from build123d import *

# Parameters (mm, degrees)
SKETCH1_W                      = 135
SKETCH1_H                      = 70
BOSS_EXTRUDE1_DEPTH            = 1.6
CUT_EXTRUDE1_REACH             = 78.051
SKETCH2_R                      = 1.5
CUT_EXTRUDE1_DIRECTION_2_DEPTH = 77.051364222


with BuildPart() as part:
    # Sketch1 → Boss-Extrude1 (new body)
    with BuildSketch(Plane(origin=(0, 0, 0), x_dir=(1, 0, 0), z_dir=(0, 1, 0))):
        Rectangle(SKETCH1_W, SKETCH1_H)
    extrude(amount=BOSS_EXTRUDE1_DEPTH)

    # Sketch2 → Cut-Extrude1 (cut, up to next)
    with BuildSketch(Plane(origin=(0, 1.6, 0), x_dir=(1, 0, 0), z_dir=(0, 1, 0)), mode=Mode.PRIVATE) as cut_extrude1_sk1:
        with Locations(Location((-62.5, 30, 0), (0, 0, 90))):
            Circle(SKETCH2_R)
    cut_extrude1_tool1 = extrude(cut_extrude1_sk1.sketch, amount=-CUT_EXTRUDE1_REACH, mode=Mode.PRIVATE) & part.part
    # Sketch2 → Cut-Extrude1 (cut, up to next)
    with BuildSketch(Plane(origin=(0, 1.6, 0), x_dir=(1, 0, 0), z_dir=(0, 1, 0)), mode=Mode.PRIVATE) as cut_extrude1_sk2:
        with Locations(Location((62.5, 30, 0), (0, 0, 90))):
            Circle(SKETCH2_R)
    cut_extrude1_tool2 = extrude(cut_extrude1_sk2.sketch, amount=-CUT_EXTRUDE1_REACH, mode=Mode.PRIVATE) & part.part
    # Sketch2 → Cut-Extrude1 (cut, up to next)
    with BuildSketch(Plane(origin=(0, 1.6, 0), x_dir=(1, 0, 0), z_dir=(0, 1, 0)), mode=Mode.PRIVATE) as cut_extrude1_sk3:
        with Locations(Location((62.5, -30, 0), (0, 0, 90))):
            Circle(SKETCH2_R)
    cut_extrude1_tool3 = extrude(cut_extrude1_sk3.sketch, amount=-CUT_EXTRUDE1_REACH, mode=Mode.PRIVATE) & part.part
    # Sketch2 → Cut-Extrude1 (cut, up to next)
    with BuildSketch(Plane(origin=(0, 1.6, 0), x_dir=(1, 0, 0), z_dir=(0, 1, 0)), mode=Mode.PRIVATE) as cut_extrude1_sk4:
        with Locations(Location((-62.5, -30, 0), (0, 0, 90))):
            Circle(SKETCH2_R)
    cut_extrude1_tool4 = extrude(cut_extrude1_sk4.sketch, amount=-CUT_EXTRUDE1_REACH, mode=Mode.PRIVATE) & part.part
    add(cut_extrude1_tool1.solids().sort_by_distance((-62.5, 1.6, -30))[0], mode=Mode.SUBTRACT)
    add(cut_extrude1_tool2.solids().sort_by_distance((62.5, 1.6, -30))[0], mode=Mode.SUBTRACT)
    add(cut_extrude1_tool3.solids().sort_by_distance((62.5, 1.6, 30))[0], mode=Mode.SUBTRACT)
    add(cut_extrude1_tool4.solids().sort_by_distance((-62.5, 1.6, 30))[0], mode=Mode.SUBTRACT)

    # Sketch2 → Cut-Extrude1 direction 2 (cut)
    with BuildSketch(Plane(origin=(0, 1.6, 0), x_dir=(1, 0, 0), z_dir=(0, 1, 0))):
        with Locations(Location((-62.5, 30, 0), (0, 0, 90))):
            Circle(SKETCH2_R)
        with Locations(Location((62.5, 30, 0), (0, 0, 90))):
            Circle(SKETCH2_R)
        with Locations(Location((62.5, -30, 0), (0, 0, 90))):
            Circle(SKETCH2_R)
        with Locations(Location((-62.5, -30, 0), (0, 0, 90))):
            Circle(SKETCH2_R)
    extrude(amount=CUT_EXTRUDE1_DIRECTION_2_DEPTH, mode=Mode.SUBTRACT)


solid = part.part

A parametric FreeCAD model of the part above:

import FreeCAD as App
import Part
import Sketcher

doc = App.newDocument("Part")
body = doc.addObject("PartDesign::Body", "Body")

sketch1 = body.newObject("Sketcher::SketchObject", "Sketch")
sketch1.AttachmentSupport = (doc.getObject("XZ_Plane"), [""])
sketch1.MapMode = "FlatFace"
sketch1.addGeometry([
    Part.LineSegment(App.Vector(-68, -35, 0), App.Vector(-68, 35, 0)),
    Part.LineSegment(App.Vector(-68, 35, 0), App.Vector(68, 35, 0)),
    Part.LineSegment(App.Vector(68, 35, 0), App.Vector(68, -35, 0)),
    Part.LineSegment(App.Vector(68, -35, 0), App.Vector(-68, -35, 0)),
], False)
sketch1.addConstraint([
    Sketcher.Constraint("Coincident", 0, 2, 1, 1),
    Sketcher.Constraint("Coincident", 1, 2, 2, 1),
    Sketcher.Constraint("Coincident", 2, 2, 3, 1),
    Sketcher.Constraint("Coincident", 3, 2, 0, 1),
    Sketcher.Constraint("Vertical", 0),
    Sketcher.Constraint("Horizontal", 1),
    Sketcher.Constraint("Vertical", 2),
    Sketcher.Constraint("Horizontal", 3),
    Sketcher.Constraint("Symmetric", 0, 2, 2, 2, -1, 1),
    Sketcher.Constraint("DistanceX", 1, 1, 1, 2, 135.0),
    Sketcher.Constraint("DistanceY", 0, 1, 0, 2, 70.0),
])
pad1 = body.newObject("PartDesign::Pad", "Pad")
pad1.Profile = sketch1
pad1.Length = 1.6
pad1.Reversed = True

sketch2 = body.newObject("Sketcher::SketchObject", "Sketch001")
sketch2.AttachmentSupport = (doc.getObject("XZ_Plane"), [""])
sketch2.MapMode = "FlatFace"
sketch2.AttachmentOffset = App.Placement(App.Vector(0, 0, -1.6), App.Rotation())
sketch2.addGeometry(Part.Circle(App.Vector(-62.5, -30, 0), App.Vector(0, 0, 1), 1.5), False)
sketch2.addConstraint([
    Sketcher.Constraint("Diameter", 0, 3.0),
    Sketcher.Constraint("DistanceY", 0, 3, -1, 1, 30.0),
    Sketcher.Constraint("DistanceX", 0, 3, -1, 1, 62.5),
])
pocket1 = body.newObject("PartDesign::Pocket", "Pocket")
pocket1.Profile = sketch2
pocket1.Type = "UpToFirst"
pocket1.Reversed = True

sketch3 = body.newObject("Sketcher::SketchObject", "Sketch002")
sketch3.AttachmentSupport = (doc.getObject("XZ_Plane"), [""])
sketch3.MapMode = "FlatFace"
sketch3.AttachmentOffset = App.Placement(App.Vector(0, 0, -1.6), App.Rotation())
sketch3.addGeometry(Part.Circle(App.Vector(62.5, -30, 0), App.Vector(0, 0, 1), 1.5), False)
sketch3.addConstraint([
    Sketcher.Constraint("Diameter", 0, 3.0),
    Sketcher.Constraint("DistanceY", 0, 3, -1, 1, 30.0),
    Sketcher.Constraint("DistanceX", -1, 1, 0, 3, 62.5),
])
pocket2 = body.newObject("PartDesign::Pocket", "Pocket001")
pocket2.Profile = sketch3
pocket2.Type = "UpToFirst"
pocket2.Reversed = True

sketch4 = body.newObject("Sketcher::SketchObject", "Sketch003")
sketch4.AttachmentSupport = (doc.getObject("XZ_Plane"), [""])
sketch4.MapMode = "FlatFace"
sketch4.AttachmentOffset = App.Placement(App.Vector(0, 0, -1.6), App.Rotation())
sketch4.addGeometry(Part.Circle(App.Vector(62.5, 30, 0), App.Vector(0, 0, 1), 1.5), False)
sketch4.addConstraint([
    Sketcher.Constraint("Diameter", 0, 3.0),
    Sketcher.Constraint("DistanceY", -1, 1, 0, 3, 30.0),
    Sketcher.Constraint("DistanceX", -1, 1, 0, 3, 62.5),
])
pocket3 = body.newObject("PartDesign::Pocket", "Pocket002")
pocket3.Profile = sketch4
pocket3.Type = "UpToFirst"
pocket3.Reversed = True

sketch5 = body.newObject("Sketcher::SketchObject", "Sketch004")
sketch5.AttachmentSupport = (doc.getObject("XZ_Plane"), [""])
sketch5.MapMode = "FlatFace"
sketch5.AttachmentOffset = App.Placement(App.Vector(0, 0, -1.6), App.Rotation())
sketch5.addGeometry(Part.Circle(App.Vector(-62.5, 30, 0), App.Vector(0, 0, 1), 1.5), False)
sketch5.addConstraint([
    Sketcher.Constraint("Diameter", 0, 3.0),
    Sketcher.Constraint("DistanceY", -1, 1, 0, 3, 30.0),
    Sketcher.Constraint("DistanceX", 0, 3, -1, 1, 62.5),
])
pocket4 = body.newObject("PartDesign::Pocket", "Pocket003")
pocket4.Profile = sketch5
pocket4.Type = "UpToFirst"
pocket4.Reversed = True

sketch6 = body.newObject("Sketcher::SketchObject", "Sketch005")
sketch6.AttachmentSupport = (doc.getObject("XZ_Plane"), [""])
sketch6.MapMode = "FlatFace"
sketch6.AttachmentOffset = App.Placement(App.Vector(0, 0, -1.6), App.Rotation())
sketch6.addGeometry([
    Part.Circle(App.Vector(-62.5, -30, 0), App.Vector(0, 0, 1), 1.5),
    Part.Circle(App.Vector(62.5, -30, 0), App.Vector(0, 0, 1), 1.5),
    Part.Circle(App.Vector(62.5, 30, 0), App.Vector(0, 0, 1), 1.5),
    Part.Circle(App.Vector(-62.5, 30, 0), App.Vector(0, 0, 1), 1.5),
], False)
sketch6.addConstraint([
    Sketcher.Constraint("Equal", 0, 1),
    Sketcher.Constraint("Equal", 1, 2),
    Sketcher.Constraint("Equal", 2, 3),
    Sketcher.Constraint("Symmetric", 0, 3, 2, 3, -1, 1),
    Sketcher.Constraint("Symmetric", 1, 3, 3, 3, -1, 1),
    Sketcher.Constraint("Symmetric", 0, 3, 1, 3, -2),
    Sketcher.Constraint("Diameter", 0, 3.0),
    Sketcher.Constraint("DistanceY", 0, 3, -1, 1, 30.0),
    Sketcher.Constraint("DistanceX", 0, 3, 1, 3, 125.0),
])
pocket5 = body.newObject("PartDesign::Pocket", "Pocket004")
pocket5.Profile = sketch6
pocket5.Length = 77.051364

doc.recompute()
